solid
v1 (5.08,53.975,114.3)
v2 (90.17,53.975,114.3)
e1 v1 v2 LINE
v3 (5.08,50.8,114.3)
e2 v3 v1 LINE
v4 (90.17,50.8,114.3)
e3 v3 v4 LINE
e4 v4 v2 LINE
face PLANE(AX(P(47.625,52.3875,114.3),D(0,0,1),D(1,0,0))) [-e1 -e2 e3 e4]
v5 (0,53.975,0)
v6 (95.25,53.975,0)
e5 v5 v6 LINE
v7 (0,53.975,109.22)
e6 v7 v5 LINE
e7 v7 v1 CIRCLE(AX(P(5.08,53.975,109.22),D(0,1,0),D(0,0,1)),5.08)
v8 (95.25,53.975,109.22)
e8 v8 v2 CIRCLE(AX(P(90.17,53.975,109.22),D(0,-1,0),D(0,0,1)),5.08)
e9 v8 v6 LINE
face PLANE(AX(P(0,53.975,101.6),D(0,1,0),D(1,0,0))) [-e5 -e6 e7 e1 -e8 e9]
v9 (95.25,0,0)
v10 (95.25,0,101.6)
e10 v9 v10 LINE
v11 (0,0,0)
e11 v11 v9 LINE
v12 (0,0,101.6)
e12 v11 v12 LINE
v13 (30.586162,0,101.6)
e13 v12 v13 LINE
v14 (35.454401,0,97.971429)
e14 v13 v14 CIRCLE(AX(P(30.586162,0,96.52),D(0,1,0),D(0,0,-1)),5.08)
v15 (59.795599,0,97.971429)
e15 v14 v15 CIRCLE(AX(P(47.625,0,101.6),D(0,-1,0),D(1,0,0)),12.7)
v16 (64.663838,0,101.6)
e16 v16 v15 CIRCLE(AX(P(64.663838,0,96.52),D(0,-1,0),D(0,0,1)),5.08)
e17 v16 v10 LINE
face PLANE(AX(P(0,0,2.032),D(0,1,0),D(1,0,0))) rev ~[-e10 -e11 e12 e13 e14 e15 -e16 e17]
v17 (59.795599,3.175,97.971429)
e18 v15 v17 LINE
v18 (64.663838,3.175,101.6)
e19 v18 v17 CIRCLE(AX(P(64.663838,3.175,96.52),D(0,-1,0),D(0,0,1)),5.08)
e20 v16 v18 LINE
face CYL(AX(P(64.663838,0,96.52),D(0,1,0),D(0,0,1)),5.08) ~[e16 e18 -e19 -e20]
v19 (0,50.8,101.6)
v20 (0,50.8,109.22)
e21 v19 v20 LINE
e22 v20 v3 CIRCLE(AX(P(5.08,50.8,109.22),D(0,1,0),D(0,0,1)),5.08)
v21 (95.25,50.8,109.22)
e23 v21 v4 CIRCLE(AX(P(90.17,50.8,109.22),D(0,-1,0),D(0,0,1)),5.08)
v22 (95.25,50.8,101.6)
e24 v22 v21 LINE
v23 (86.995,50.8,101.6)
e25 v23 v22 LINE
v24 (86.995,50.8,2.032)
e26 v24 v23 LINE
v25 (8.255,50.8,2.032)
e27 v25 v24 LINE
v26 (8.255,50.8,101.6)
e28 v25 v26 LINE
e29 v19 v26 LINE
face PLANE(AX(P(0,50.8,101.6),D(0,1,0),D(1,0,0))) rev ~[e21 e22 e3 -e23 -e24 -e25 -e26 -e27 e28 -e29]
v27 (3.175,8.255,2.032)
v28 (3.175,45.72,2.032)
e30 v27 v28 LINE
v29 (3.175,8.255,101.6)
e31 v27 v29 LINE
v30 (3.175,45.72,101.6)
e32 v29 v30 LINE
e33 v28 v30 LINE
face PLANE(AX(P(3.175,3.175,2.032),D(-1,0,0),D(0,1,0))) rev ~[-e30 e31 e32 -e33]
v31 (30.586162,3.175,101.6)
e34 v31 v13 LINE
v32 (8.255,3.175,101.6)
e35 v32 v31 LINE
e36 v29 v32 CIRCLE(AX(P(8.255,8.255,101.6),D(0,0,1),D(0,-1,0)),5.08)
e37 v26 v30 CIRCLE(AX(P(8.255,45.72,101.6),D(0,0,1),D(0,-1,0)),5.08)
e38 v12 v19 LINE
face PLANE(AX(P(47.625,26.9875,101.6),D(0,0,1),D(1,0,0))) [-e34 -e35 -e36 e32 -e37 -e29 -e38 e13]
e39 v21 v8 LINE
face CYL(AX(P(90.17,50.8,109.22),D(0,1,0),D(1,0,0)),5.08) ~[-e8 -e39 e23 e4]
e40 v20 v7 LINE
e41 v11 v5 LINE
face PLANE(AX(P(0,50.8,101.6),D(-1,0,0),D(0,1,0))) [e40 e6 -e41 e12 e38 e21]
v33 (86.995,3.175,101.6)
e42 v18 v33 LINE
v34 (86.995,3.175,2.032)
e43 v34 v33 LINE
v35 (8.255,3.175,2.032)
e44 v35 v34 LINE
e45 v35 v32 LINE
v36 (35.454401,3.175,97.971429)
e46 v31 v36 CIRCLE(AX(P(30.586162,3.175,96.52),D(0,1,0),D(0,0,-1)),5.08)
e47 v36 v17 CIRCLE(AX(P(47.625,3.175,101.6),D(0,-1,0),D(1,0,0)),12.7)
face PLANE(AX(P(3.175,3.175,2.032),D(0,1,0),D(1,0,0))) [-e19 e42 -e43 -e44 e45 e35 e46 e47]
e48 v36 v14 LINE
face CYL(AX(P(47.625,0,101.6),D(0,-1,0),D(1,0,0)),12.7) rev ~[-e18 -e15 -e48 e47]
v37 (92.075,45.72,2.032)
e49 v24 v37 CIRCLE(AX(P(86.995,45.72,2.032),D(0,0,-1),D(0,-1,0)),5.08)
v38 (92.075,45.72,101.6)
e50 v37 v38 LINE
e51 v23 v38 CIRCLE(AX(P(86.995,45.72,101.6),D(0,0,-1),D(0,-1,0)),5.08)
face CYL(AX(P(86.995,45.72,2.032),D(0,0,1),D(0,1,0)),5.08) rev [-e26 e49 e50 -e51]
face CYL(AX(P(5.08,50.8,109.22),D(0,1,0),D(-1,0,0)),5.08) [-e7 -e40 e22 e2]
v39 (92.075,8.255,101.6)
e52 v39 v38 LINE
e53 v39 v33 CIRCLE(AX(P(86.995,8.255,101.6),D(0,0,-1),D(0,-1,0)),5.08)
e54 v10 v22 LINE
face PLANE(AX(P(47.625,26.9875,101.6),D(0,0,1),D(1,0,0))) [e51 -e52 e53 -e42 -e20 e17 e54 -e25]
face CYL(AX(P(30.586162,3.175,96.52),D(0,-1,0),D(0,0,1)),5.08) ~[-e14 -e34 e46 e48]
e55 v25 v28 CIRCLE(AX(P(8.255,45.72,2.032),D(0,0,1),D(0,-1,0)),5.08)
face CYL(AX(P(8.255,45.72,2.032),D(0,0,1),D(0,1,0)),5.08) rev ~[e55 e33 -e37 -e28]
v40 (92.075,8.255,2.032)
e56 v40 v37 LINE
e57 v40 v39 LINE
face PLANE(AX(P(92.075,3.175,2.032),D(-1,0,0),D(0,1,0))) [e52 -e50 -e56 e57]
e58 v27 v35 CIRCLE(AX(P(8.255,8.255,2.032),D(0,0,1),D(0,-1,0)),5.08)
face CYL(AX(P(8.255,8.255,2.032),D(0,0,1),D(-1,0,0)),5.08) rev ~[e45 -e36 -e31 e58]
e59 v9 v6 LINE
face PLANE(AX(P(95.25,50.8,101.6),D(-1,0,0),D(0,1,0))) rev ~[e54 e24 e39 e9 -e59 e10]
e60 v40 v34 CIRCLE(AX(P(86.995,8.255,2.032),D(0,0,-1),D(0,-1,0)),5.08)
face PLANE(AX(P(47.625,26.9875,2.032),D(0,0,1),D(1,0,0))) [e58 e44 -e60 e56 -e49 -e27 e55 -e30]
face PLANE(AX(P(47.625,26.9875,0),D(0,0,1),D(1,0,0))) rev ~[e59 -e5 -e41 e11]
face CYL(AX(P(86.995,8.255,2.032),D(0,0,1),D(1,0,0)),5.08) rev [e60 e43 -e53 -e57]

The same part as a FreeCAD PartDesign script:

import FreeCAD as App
import Part
import Sketcher
from FreeCAD import Vector
Q = App.Units.Quantity


def edges_at(feature, points):
    """Names of the edges that pass closest to the given points."""
    edges = feature.Shape.Edges
    near = lambda p: min(range(len(edges)), key=lambda i: edges[i].distToShape(Part.Vertex(*p))[0])
    return sorted({f"Edge{near(p) + 1}" for p in points})

doc = App.newDocument("Part")
params = doc.addObject("Spreadsheet::Sheet", "Params")
for row, (alias, value) in enumerate([
    ("sketch1_width", "3.75 in"),
    ("sketch1_height", "2.125 in"),
    ("pad1_length", "0.08 in"),
    ("sketch2_width", "3.5 in"),
    ("sketch2_width2", "3.75 in"),
    ("sketch2_height", "2.125 in"),
    ("pad2_length", "3.92 in"),
    ("sketch3_width", "3.75 in"),
    ("sketch3_height", "0.125 in"),
    ("pad3_length", "0.5 in"),
    ("fillet_radius", "0.2 in"),
    ("fillet2_radius", "0.2 in"),
    ("sketch4_diameter", "1 in"),
    ("pocket1_length", "0.25 in"),
    ("fillet3_radius", "0.2 in"),
], start=1):
    params.set(f"A{row}", alias)
    params.set(f"B{row}", "=" + value)
    params.setAlias(f"B{row}", alias)

body = doc.addObject("PartDesign::Body", "Body")

sketch1 = body.newObject("Sketcher::SketchObject", "Sketch")
sketch1.AttachmentSupport = (doc.getObject("XY_Plane"), [""])
sketch1.MapMode = "FlatFace"
sketch1.addGeometry(Part.LineSegment(Vector(0, 54, 0), Vector(0, 0, 0)), False)
sketch1.addGeometry(Part.LineSegment(Vector(0, 0, 0), Vector(95, 0, 0)), False)
sketch1.addGeometry(Part.LineSegment(Vector(95, 0, 0), Vector(95, 54, 0)), False)
sketch1.addGeometry(Part.LineSegment(Vector(95, 54, 0), Vector(0, 54, 0)), False)
sketch1.addConstraint(Sketcher.Constraint("Coincident", 0, 2, 1, 1))
sketch1.addConstraint(Sketcher.Constraint("Coincident", 1, 2, 2, 1))
sketch1.addConstraint(Sketcher.Constraint("Coincident", 2, 2, 3, 1))
sketch1.addConstraint(Sketcher.Constraint("Coincident", 3, 2, 0, 1))
sketch1.addConstraint(Sketcher.Constraint("Vertical", 0))
sketch1.addConstraint(Sketcher.Constraint("Horizontal", 1))
sketch1.addConstraint(Sketcher.Constraint("Vertical", 2))
sketch1.addConstraint(Sketcher.Constraint("Horizontal", 3))
sketch1.addConstraint(Sketcher.Constraint("Coincident", 0, 2, -1, 1))
sketch1.addConstraint(Sketcher.Constraint("DistanceX", 1, 1, 1, 2, Q("3.75 in")))
sketch1.addConstraint(Sketcher.Constraint("DistanceY", 0, 2, 0, 1, Q("2.125 in")))
sketch1.setExpression("Constraints[9]", "Params.sketch1_width")
sketch1.setExpression("Constraints[10]", "Params.sketch1_height")
pad1 = body.newObject("PartDesign::Pad", "Pad")
pad1.Profile = sketch1
pad1.setExpression("Length", "Params.pad1_length")

sketch2 = body.newObject("Sketcher::SketchObject", "Sketch001")
sketch2.AttachmentSupport = (doc.getObject("XY_Plane"), [""])
sketch2.MapMode = "FlatFace"
sketch2.AttachmentOffset = App.Placement(Vector(0, 0, 0.08 * 25.4), App.Rotation())
sketch2.addGeometry(Part.LineSegment(Vector(0, 54, 0), Vector(0, 0, 0)), False)
sketch2.addGeometry(Part.LineSegment(Vector(0, 0, 0), Vector(95, 0, 0)), False)
sketch2.addGeometry(Part.LineSegment(Vector(95, 0, 0), Vector(95, 54, 0)), False)
sketch2.addGeometry(Part.LineSegment(Vector(95, 54, 0), Vector(0, 54, 0)), False)
sketch2.addGeometry(Part.LineSegment(Vector(92, 3, 0), Vector(3, 3, 0)), False)
sketch2.addGeometry(Part.LineSegment(Vector(3, 3, 0), Vector(3, 51, 0)), False)
sketch2.addGeometry(Part.LineSegment(Vector(3, 51, 0), Vector(92, 51, 0)), False)
sketch2.addGeometry(Part.LineSegment(Vector(92, 51, 0), Vector(92, 3, 0)), False)
sketch2.addConstraint(Sketcher.Constraint("Coincident", 0, 2, 1, 1))
sketch2.addConstraint(Sketcher.Constraint("Coincident", 1, 2, 2, 1))
sketch2.addConstraint(Sketcher.Constraint("Coincident", 2, 2, 3, 1))
sketch2.addConstraint(Sketcher.Constraint("Coincident", 3, 2, 0, 1))
sketch2.addConstraint(Sketcher.Constraint("Coincident", 4, 2, 5, 1))
sketch2.addConstraint(Sketcher.Constraint("Coincident", 5, 2, 6, 1))
sketch2.addConstraint(Sketcher.Constraint("Coincident", 6, 2, 7, 1))
sketch2.addConstraint(Sketcher.Constraint("Coincident", 7, 2, 4, 1))
sketch2.addConstraint(Sketcher.Constraint("Vertical", 0))
sketch2.addConstraint(Sketcher.Constraint("Horizontal", 1))
sketch2.addConstraint(Sketcher.Constraint("Vertical", 2))
sketch2.addConstraint(Sketcher.Constraint("Horizontal", 3))
sketch2.addConstraint(Sketcher.Constraint("Horizontal", 4))
sketch2.addConstraint(Sketcher.Constraint("Vertical", 5))
sketch2.addConstraint(Sketcher.Constraint("Horizontal", 6))
sketch2.addConstraint(Sketcher.Constraint("Vertical", 7))
sketch2.addConstraint(Sketcher.Constraint("Coincident", 0, 2, -1, 1))
sketch2.addConstraint(Sketcher.Constraint("DistanceX", 4, 2, 4, 1, Q("3.5 in")))
sketch2.addConstraint(Sketcher.Constraint("DistanceY", -1, 1, 5, 2, Q("2 in")))
sketch2.addConstraint(Sketcher.Constraint("DistanceY", 4, 2, 3, 2, Q("2 in")))
sketch2.addConstraint(Sketcher.Constraint("DistanceX", 1, 1, 1, 2, Q("3.75 in")))
sketch2.addConstraint(Sketcher.Constraint("DistanceY", 0, 2, 0, 1, Q("2.125 in")))
sketch2.addConstraint(Sketcher.Constraint("DistanceX", -1, 1, 4, 2, Q("0.125 in")))
sketch2.setExpression("Constraints[17]", "Params.sketch2_width")
sketch2.setExpression("Constraints[20]", "Params.sketch2_width2")
sketch2.setExpression("Constraints[21]", "Params.sketch2_height")
pad2 = body.newObject("PartDesign::Pad", "Pad001")
pad2.Profile = sketch2
pad2.setExpression("Length", "Params.pad2_length")

sketch3 = body.newObject("Sketcher::SketchObject", "Sketch002")
sketch3.AttachmentSupport = (doc.getObject("XY_Plane"), [""])
sketch3.MapMode = "FlatFace"
sketch3.AttachmentOffset = App.Placement(Vector(0, 0, 4 * 25.4), App.Rotation())
sketch3.addGeometry(Part.LineSegment(Vector(0, 54, 0), Vector(0, 50.8, 0)), False)
sketch3.addGeometry(Part.LineSegment(Vector(0, 50.8, 0), Vector(95.2, 50.8, 0)), False)
sketch3.addGeometry(Part.LineSegment(Vector(95.2, 50.8, 0), Vector(95.2, 54, 0)), False)
sketch3.addGeometry(Part.LineSegment(Vector(95.2, 54, 0), Vector(0, 54, 0)), False)
sketch3.addConstraint(Sketcher.Constraint("Coincident", 0, 2, 1, 1))
sketch3.addConstraint(Sketcher.Constraint("Coincident", 1, 2, 2, 1))
sketch3.addConstraint(Sketcher.Constraint("Coincident", 2, 2, 3, 1))
sketch3.addConstraint(Sketcher.Constraint("Coincident", 3, 2, 0, 1))
sketch3.addConstraint(Sketcher.Constraint("Vertical", 0))
sketch3.addConstraint(Sketcher.Constraint("Horizontal", 1))
sketch3.addConstraint(Sketcher.Constraint("Vertical", 2))
sketch3.addConstraint(Sketcher.Constraint("Horizontal", 3))
sketch3.addConstraint(Sketcher.Constraint("PointOnObject", 0, 2, -2))
sketch3.addConstraint(Sketcher.Constraint("DistanceY", -1, 1, 0, 2, Q("2 in")))
sketch3.addConstraint(Sketcher.Constraint("DistanceX", 1, 1, 1, 2, Q("3.75 in")))
sketch3.addConstraint(Sketcher.Constraint("DistanceY", 0, 2, 0, 1, Q("0.125 in")))
sketch3.setExpression("Constraints[10]", "Params.sketch3_width")
sketch3.setExpression("Constraints[11]", "Params.sketch3_height")
pad3 = body.newObject("PartDesign::Pad", "Pad002")
pad3.Profile = sketch3
pad3.setExpression("Length", "Params.pad3_length")
doc.recompute()

fillet = body.newObject("PartDesign::Fillet", "Fillet")
fillet.Base = (pad3, edges_at(pad3, [(0, 52.388, 114.3), (95.25, 52.388, 114.3)]))
fillet.setExpression("Radius", "Params.fillet_radius")
doc.recompute()

fillet2 = body.newObject("PartDesign::Fillet", "Fillet001")
fillet2.Base = (fillet, edges_at(fillet, [
    (92.075, 50.8, 51.816),
    (3.175, 50.8, 51.816),
    (3.175, 3.175, 51.816),
    (92.075, 3.175, 51.816),
]))
fillet2.setExpression("Radius", "Params.fillet2_radius")

sketch4 = body.newObject("Sketcher::SketchObject", "Sketch003")
sketch4.AttachmentSupport = (doc.getObject("XZ_Plane"), [""])
sketch4.MapMode = "FlatFace"
sketch4.addGeometry(Part.Circle(Vector(48, 102, 0), Vector(0, 0, 1), 13), False)
sketch4.addConstraint(Sketcher.Constraint("Diameter", 0, Q("1 in")))
sketch4.addConstraint(Sketcher.Constraint("DistanceY", -1, 1, 0, 3, Q("4 in")))
sketch4.addConstraint(Sketcher.Constraint("DistanceX", -1, 1, 0, 3, Q("1.875 in")))
sketch4.setExpression("Constraints[0]", "Params.sketch4_diameter")
pocket1 = body.newObject("PartDesign::Pocket", "Pocket")
pocket1.Profile = sketch4
pocket1.setExpression("Length", "Params.pocket1_length")
doc.recompute()

fillet3 = body.newObject("PartDesign::Fillet", "Fillet002")
fillet3.Base = (pocket1, edges_at(pocket1, [(60.325, 1.587, 101.6), (34.925, 1.587, 101.6)]))
fillet3.setExpression("Radius", "Params.fillet3_radius")

doc.recompute()
